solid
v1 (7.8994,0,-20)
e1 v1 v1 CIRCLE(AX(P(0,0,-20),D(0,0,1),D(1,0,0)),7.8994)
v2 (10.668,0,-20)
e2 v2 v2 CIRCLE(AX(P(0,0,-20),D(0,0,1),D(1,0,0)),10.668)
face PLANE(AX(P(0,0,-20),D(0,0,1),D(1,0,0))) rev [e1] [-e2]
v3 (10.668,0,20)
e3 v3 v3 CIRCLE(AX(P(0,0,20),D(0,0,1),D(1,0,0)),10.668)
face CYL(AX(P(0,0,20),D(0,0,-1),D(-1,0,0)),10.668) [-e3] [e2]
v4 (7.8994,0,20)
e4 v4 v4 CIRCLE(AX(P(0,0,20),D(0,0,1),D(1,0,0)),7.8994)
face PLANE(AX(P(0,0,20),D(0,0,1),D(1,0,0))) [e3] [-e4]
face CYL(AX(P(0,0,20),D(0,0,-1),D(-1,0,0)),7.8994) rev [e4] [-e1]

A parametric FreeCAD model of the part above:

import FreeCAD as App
import Part
import Sketcher
Q = App.Units.Quantity

doc = App.newDocument("Part")
body = doc.addObject("PartDesign::Body", "Body")

# Sketch on XY plane
sketch1 = body.newObject("Sketcher::SketchObject", "Sketch")
sketch1.AttachmentSupport = (doc.getObject("XY_Plane"), [""])
sketch1.MapMode = "FlatFace"
sketch1.addGeometry(Part.Circle(App.Vector(0, 0, 0), App.Vector(0, 0, 1), 11), False)
sketch1.addGeometry(Part.Circle(App.Vector(0, 0, 0), App.Vector(0, 0, 1), 8), False)
sketch1.addConstraint(Sketcher.Constraint("Coincident", 0, 3, -1, 1))
sketch1.addConstraint(Sketcher.Constraint("Coincident", 1, 3, -1, 1))
sketch1.addConstraint(Sketcher.Constraint("Diameter", 0, Q("0.84 in")))
sketch1.addConstraint(Sketcher.Constraint("Diameter", 1, Q("0.622 in")))
pad1 = body.newObject("PartDesign::Pad", "Pad")
pad1.Profile = sketch1
pad1.Length = 40
pad1.Midplane = True

doc.recompute()
